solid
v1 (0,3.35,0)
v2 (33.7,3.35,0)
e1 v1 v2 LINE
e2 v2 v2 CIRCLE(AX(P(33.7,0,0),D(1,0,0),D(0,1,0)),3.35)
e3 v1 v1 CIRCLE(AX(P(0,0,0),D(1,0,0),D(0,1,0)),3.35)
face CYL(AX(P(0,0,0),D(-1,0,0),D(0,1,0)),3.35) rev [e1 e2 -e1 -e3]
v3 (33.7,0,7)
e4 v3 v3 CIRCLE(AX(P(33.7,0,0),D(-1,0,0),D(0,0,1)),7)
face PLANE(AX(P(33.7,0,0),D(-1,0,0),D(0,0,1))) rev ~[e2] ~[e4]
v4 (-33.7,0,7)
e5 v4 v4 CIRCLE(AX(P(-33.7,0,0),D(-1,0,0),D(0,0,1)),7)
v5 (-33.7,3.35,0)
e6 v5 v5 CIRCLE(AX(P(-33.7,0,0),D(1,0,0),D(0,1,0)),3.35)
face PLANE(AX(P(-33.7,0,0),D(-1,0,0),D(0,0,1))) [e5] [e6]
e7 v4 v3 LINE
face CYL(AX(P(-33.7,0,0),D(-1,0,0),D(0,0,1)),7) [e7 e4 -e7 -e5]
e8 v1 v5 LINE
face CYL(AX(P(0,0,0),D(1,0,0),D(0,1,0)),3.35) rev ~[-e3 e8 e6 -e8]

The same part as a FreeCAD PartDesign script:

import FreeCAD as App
import Part
import Sketcher

V = App.Vector
Q = App.Units.Quantity

doc = App.newDocument("Part")
body = doc.addObject("PartDesign::Body", "Body")

sketch1 = doc.addObject("Sketcher::SketchObject", "Sketch")
body.addObject(sketch1)
sketch1.AttachmentSupport = (doc.YZ_Plane, [""])
sketch1.MapMode = "FlatFace"
sketch1.addGeometry(Part.Circle(V(0, 0, 0), V(0, 0, 1), 5.5), False)
sketch1.addGeometry(Part.Circle(V(0, 0, 0), V(0, 0, 1), 3.35), False)
sketch1.addConstraint(Sketcher.Constraint("Coincident", 0, 3, -1, 1))
sketch1.addConstraint(Sketcher.Constraint("Coincident", 1, 3, -1, 1))
sketch1.addConstraint(Sketcher.Constraint("Diameter", 0, Q("11 mm")))
sketch1.addConstraint(Sketcher.Constraint("Diameter", 1, Q("6.7 mm")))
pad1 = doc.addObject("PartDesign::Pad", "Pad")
body.addObject(pad1)
pad1.Profile = sketch1
pad1.Length = 67.4
pad1.Midplane = True

sketch2 = doc.addObject("Sketcher::SketchObject", "Sketch001")
body.addObject(sketch2)
sketch2.AttachmentSupport = (doc.YZ_Plane, [""])
sketch2.MapMode = "FlatFace"
sketch2.AttachmentOffset = App.Placement(V(0, 0, -33.7), App.Rotation())
sketch2.addGeometry(Part.Circle(V(0, 0, 0), V(0, 0, 1), 7), False)
sketch2.addGeometry(Part.Circle(V(0, 0, 0), V(0, 0, 1), 5.5), False)
sketch2.addConstraint(Sketcher.Constraint("Coincident", 0, 3, -1, 1))
sketch2.addConstraint(Sketcher.Constraint("Coincident", 1, 3, -1, 1))
sketch2.addConstraint(Sketcher.Constraint("Diameter", 0, Q("14 mm")))
sketch2.addConstraint(Sketcher.Constraint("Diameter", 1, Q("11 mm")))
pad2 = doc.addObject("PartDesign::Pad", "Pad001")
body.addObject(pad2)
pad2.Profile = sketch2
pad2.Length = 67.4

doc.recompute()
